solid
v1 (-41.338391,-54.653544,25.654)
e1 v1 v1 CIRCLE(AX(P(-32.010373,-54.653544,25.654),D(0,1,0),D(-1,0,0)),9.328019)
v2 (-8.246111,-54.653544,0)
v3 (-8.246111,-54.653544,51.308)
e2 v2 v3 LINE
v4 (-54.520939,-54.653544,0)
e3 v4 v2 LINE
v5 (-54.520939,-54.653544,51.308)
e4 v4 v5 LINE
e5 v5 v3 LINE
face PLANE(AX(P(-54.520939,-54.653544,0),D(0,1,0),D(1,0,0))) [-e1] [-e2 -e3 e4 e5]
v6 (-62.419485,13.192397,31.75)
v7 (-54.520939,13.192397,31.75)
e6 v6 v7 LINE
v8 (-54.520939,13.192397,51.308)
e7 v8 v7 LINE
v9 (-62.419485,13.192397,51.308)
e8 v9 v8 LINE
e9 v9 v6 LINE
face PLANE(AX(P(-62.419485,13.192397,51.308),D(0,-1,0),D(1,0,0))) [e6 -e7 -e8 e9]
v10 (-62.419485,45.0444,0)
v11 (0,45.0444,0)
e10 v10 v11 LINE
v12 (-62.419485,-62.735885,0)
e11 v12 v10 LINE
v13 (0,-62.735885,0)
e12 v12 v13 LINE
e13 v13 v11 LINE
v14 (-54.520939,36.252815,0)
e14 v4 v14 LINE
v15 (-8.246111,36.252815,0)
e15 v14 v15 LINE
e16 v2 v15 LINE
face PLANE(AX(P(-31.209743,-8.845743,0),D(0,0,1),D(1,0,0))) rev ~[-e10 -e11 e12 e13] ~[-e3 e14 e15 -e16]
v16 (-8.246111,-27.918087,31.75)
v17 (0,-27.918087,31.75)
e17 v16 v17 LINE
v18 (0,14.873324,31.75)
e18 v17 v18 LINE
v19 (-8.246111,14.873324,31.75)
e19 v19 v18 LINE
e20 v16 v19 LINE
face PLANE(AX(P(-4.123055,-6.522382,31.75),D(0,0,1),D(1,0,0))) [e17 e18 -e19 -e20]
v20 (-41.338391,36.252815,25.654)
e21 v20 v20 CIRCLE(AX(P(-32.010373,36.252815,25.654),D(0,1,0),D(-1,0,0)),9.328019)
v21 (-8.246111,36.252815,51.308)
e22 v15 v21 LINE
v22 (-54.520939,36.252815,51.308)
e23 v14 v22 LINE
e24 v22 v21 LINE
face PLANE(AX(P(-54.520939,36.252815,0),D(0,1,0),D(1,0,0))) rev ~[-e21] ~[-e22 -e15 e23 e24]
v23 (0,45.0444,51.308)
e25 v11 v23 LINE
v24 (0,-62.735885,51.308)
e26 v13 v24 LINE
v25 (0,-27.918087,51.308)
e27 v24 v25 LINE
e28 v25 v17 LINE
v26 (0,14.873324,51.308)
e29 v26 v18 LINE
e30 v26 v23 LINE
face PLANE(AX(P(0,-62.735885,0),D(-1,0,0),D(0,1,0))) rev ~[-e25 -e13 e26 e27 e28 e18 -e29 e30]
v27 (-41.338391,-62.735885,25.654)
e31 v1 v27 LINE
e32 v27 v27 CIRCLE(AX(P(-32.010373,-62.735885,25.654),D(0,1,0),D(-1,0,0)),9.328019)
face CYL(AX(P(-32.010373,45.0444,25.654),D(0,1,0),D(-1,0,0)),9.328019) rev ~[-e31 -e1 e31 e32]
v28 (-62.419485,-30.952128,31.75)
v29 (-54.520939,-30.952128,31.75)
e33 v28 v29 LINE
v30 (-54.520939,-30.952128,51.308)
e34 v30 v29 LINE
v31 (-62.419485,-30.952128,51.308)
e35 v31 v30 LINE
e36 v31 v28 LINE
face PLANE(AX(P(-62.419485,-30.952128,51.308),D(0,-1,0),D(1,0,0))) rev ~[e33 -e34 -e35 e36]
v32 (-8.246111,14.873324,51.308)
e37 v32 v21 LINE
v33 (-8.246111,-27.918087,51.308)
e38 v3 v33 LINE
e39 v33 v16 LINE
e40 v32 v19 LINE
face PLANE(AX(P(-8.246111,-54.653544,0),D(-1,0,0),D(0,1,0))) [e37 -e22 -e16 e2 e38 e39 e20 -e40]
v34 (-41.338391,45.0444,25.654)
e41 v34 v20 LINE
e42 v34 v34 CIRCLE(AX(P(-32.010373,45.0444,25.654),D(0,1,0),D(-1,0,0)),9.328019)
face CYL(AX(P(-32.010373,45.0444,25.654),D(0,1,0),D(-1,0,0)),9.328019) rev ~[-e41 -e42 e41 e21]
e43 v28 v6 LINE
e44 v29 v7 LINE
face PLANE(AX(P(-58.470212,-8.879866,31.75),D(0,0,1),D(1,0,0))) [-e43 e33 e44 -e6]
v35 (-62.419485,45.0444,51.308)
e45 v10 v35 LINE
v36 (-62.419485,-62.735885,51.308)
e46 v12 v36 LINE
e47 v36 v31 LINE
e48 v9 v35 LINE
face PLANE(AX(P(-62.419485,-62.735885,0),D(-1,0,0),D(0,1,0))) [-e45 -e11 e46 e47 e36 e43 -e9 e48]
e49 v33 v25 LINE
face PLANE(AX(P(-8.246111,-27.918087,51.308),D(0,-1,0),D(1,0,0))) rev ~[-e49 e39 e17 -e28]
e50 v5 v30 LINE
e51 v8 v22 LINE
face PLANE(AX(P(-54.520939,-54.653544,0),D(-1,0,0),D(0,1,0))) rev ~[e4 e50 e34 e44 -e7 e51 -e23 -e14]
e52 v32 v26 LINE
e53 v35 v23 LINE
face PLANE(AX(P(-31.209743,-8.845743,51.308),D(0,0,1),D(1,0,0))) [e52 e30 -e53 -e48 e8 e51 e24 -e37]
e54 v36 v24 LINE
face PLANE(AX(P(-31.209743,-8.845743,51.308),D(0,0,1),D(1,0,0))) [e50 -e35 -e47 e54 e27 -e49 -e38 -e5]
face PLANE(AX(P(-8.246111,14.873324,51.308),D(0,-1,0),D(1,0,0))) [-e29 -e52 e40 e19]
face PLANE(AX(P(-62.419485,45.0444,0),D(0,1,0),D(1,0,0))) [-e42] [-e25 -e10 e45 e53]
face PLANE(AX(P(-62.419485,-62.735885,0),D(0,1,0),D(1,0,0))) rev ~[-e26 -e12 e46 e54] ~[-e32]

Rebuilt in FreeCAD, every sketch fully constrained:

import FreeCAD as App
import Part
import Sketcher
Q = App.Units.Quantity

doc = App.newDocument("Part")
params = doc.addObject("Spreadsheet::Sheet", "Params")
for row, (alias, value) in enumerate([
    ("pad1_length", "2.02 in"),
    ("pocket1_length", "0.77 in"),
    ("pocket2_length", "6 in"),
], start=1):
    params.set(f"A{row}", alias)
    params.set(f"B{row}", "=" + value)
    params.setAlias(f"B{row}", alias)

body = doc.addObject("PartDesign::Body", "Body")

# Sketch on XY plane
sketch1 = body.newObject("Sketcher::SketchObject", "Sketch")
sketch1.AttachmentSupport = (doc.getObject("XY_Plane"), [""])
sketch1.MapMode = "FlatFace"
sketch1.addGeometry(Part.LineSegment(App.Vector(-62, 45, 0), App.Vector(-62, -63, 0)), False)
sketch1.addGeometry(Part.LineSegment(App.Vector(-62, -63, 0), App.Vector(0, -63, 0)), False)
sketch1.addGeometry(Part.LineSegment(App.Vector(0, -63, 0), App.Vector(0, 45, 0)), False)
sketch1.addGeometry(Part.LineSegment(App.Vector(0, 45, 0), App.Vector(-62, 45, 0)), False)
sketch1.addGeometry(Part.LineSegment(App.Vector(-8, -55, 0), App.Vector(-55, -55, 0)), False)
sketch1.addGeometry(Part.LineSegment(App.Vector(-55, -55, 0), App.Vector(-55, 36, 0)), False)
sketch1.addGeometry(Part.LineSegment(App.Vector(-55, 36, 0), App.Vector(-8, 36, 0)), False)
sketch1.addGeometry(Part.LineSegment(App.Vector(-8, 36, 0), App.Vector(-8, -55, 0)), False)
sketch1.addConstraint(Sketcher.Constraint("Coincident", 0, 2, 1, 1))
sketch1.addConstraint(Sketcher.Constraint("Coincident", 1, 2, 2, 1))
sketch1.addConstraint(Sketcher.Constraint("Coincident", 2, 2, 3, 1))
sketch1.addConstraint(Sketcher.Constraint("Coincident", 3, 2, 0, 1))
sketch1.addConstraint(Sketcher.Constraint("Coincident", 4, 2, 5, 1))
sketch1.addConstraint(Sketcher.Constraint("Coincident", 5, 2, 6, 1))
sketch1.addConstraint(Sketcher.Constraint("Coincident", 6, 2, 7, 1))
sketch1.addConstraint(Sketcher.Constraint("Coincident", 7, 2, 4, 1))
sketch1.addConstraint(Sketcher.Constraint("Vertical", 0))
sketch1.addConstraint(Sketcher.Constraint("Horizontal", 1))
sketch1.addConstraint(Sketcher.Constraint("Vertical", 2))
sketch1.addConstraint(Sketcher.Constraint("Horizontal", 3))
sketch1.addConstraint(Sketcher.Constraint("Horizontal", 4))
sketch1.addConstraint(Sketcher.Constraint("Vertical", 5))
sketch1.addConstraint(Sketcher.Constraint("Horizontal", 6))
sketch1.addConstraint(Sketcher.Constraint("Vertical", 7))
sketch1.addConstraint(Sketcher.Constraint("PointOnObject", 1, 2, -2))
sketch1.addConstraint(Sketcher.Constraint("DistanceY", 5, 1, 5, 2, 90.906359))
sketch1.addConstraint(Sketcher.Constraint("DistanceY", -1, 1, 2, 2, 45.0444))
sketch1.addConstraint(Sketcher.Constraint("DistanceY", 0, 2, 5, 2, 98.988701))
sketch1.addConstraint(Sketcher.Constraint("DistanceX", 1, 1, 1, 2, 62.419485))
sketch1.addConstraint(Sketcher.Constraint("DistanceX", 4, 2, 4, 1, 46.274828))
sketch1.addConstraint(Sketcher.Constraint("DistanceY", 0, 2, 0, 1, 107.780285))
sketch1.addConstraint(Sketcher.Constraint("DistanceX", 4, 2, -1, 1, 54.520939))
pad1 = body.newObject("PartDesign::Pad", "Pad")
pad1.Profile = sketch1
pad1.setExpression("Length", "Params.pad1_length")

# Sketch on XY plane
sketch2 = body.newObject("Sketcher::SketchObject", "Sketch001")
sketch2.AttachmentSupport = (doc.getObject("XY_Plane"), [""])
sketch2.MapMode = "FlatFace"
sketch2.AttachmentOffset = App.Placement(App.Vector(0, 0, 2.02 * 25.4), App.Rotation())
sketch2.addGeometry(Part.LineSegment(App.Vector(-8, 15, 0), App.Vector(-8, -28, 0)), False)
sketch2.addGeometry(Part.LineSegment(App.Vector(-8, -28, 0), App.Vector(0, -28, 0)), False)
sketch2.addGeometry(Part.LineSegment(App.Vector(0, -28, 0), App.Vector(0, 15, 0)), False)
sketch2.addGeometry(Part.LineSegment(App.Vector(0, 15, 0), App.Vector(-8, 15, 0)), False)
sketch2.addGeometry(Part.LineSegment(App.Vector(-62, 13, 0), App.Vector(-62, -31, 0)), False)
sketch2.addGeometry(Part.LineSegment(App.Vector(-62, -31, 0), App.Vector(-55, -31, 0)), False)
sketch2.addGeometry(Part.LineSegment(App.Vector(-55, -31, 0), App.Vector(-55, 13, 0)), False)
sketch2.addGeometry(Part.LineSegment(App.Vector(-55, 13, 0), App.Vector(-62, 13, 0)), False)
sketch2.addConstraint(Sketcher.Constraint("Coincident", 0, 2, 1, 1))
sketch2.addConstraint(Sketcher.Constraint("Coincident", 1, 2, 2, 1))
sketch2.addConstraint(Sketcher.Constraint("Coincident", 2, 2, 3, 1))
sketch2.addConstraint(Sketcher.Constraint("Coincident", 3, 2, 0, 1))
sketch2.addConstraint(Sketcher.Constraint("Coincident", 4, 2, 5, 1))
sketch2.addConstraint(Sketcher.Constraint("Coincident", 5, 2, 6, 1))
sketch2.addConstraint(Sketcher.Constraint("Coincident", 6, 2, 7, 1))
sketch2.addConstraint(Sketcher.Constraint("Coincident", 7, 2, 4, 1))
sketch2.addConstraint(Sketcher.Constraint("Vertical", 0))
sketch2.addConstraint(Sketcher.Constraint("Horizontal", 1))
sketch2.addConstraint(Sketcher.Constraint("Vertical", 2))
sketch2.addConstraint(Sketcher.Constraint("Horizontal", 3))
sketch2.addConstraint(Sketcher.Constraint("Vertical", 4))
sketch2.addConstraint(Sketcher.Constraint("Horizontal", 5))
sketch2.addConstraint(Sketcher.Constraint("Vertical", 6))
sketch2.addConstraint(Sketcher.Constraint("Horizontal", 7))
sketch2.addConstraint(Sketcher.Constraint("PointOnObject", 1, 2, -2))
sketch2.addConstraint(Sketcher.Constraint("DistanceX", 1, 1, 1, 2, 8.246111))
sketch2.addConstraint(Sketcher.Constraint("DistanceY", 0, 2, 0, 1, 42.791411))
sketch2.addConstraint(Sketcher.Constraint("DistanceX", 5, 1, 5, 2, 7.898547))
sketch2.addConstraint(Sketcher.Constraint("DistanceY", 4, 2, 4, 1, 44.144524))
sketch2.addConstraint(Sketcher.Constraint("DistanceX", 5, 2, -1, 1, 54.520939))
sketch2.addConstraint(Sketcher.Constraint("DistanceY", 4, 2, 0, 2, 3.03404))
sketch2.addConstraint(Sketcher.Constraint("DistanceY", 0, 2, -1, 1, 27.918087))
pocket1 = body.newObject("PartDesign::Pocket", "Pocket")
pocket1.Profile = sketch2
pocket1.setExpression("Length", "Params.pocket1_length")

# Sketch on XZ plane
sketch3 = body.newObject("Sketcher::SketchObject", "Sketch002")
sketch3.AttachmentSupport = (doc.getObject("XZ_Plane"), [""])
sketch3.MapMode = "FlatFace"
sketch3.AttachmentOffset = App.Placement(App.Vector(0, 0, -45.0444), App.Rotation())
sketch3.addGeometry(Part.Circle(App.Vector(-32, 26, 0), App.Vector(0, 0, 1), 9), False)
sketch3.addConstraint(Sketcher.Constraint("DistanceY", -1, 1, 0, 3, Q("1.01 in")))
sketch3.addConstraint(Sketcher.Constraint("Diameter", 0, 18.656037))
sketch3.addConstraint(Sketcher.Constraint("DistanceX", 0, 3, -1, 1, 32.010373))
pocket2 = body.newObject("PartDesign::Pocket", "Pocket001")
pocket2.Profile = sketch3
pocket2.setExpression("Length", "Params.pocket2_length")
pocket2.Reversed = True

doc.recompute()
